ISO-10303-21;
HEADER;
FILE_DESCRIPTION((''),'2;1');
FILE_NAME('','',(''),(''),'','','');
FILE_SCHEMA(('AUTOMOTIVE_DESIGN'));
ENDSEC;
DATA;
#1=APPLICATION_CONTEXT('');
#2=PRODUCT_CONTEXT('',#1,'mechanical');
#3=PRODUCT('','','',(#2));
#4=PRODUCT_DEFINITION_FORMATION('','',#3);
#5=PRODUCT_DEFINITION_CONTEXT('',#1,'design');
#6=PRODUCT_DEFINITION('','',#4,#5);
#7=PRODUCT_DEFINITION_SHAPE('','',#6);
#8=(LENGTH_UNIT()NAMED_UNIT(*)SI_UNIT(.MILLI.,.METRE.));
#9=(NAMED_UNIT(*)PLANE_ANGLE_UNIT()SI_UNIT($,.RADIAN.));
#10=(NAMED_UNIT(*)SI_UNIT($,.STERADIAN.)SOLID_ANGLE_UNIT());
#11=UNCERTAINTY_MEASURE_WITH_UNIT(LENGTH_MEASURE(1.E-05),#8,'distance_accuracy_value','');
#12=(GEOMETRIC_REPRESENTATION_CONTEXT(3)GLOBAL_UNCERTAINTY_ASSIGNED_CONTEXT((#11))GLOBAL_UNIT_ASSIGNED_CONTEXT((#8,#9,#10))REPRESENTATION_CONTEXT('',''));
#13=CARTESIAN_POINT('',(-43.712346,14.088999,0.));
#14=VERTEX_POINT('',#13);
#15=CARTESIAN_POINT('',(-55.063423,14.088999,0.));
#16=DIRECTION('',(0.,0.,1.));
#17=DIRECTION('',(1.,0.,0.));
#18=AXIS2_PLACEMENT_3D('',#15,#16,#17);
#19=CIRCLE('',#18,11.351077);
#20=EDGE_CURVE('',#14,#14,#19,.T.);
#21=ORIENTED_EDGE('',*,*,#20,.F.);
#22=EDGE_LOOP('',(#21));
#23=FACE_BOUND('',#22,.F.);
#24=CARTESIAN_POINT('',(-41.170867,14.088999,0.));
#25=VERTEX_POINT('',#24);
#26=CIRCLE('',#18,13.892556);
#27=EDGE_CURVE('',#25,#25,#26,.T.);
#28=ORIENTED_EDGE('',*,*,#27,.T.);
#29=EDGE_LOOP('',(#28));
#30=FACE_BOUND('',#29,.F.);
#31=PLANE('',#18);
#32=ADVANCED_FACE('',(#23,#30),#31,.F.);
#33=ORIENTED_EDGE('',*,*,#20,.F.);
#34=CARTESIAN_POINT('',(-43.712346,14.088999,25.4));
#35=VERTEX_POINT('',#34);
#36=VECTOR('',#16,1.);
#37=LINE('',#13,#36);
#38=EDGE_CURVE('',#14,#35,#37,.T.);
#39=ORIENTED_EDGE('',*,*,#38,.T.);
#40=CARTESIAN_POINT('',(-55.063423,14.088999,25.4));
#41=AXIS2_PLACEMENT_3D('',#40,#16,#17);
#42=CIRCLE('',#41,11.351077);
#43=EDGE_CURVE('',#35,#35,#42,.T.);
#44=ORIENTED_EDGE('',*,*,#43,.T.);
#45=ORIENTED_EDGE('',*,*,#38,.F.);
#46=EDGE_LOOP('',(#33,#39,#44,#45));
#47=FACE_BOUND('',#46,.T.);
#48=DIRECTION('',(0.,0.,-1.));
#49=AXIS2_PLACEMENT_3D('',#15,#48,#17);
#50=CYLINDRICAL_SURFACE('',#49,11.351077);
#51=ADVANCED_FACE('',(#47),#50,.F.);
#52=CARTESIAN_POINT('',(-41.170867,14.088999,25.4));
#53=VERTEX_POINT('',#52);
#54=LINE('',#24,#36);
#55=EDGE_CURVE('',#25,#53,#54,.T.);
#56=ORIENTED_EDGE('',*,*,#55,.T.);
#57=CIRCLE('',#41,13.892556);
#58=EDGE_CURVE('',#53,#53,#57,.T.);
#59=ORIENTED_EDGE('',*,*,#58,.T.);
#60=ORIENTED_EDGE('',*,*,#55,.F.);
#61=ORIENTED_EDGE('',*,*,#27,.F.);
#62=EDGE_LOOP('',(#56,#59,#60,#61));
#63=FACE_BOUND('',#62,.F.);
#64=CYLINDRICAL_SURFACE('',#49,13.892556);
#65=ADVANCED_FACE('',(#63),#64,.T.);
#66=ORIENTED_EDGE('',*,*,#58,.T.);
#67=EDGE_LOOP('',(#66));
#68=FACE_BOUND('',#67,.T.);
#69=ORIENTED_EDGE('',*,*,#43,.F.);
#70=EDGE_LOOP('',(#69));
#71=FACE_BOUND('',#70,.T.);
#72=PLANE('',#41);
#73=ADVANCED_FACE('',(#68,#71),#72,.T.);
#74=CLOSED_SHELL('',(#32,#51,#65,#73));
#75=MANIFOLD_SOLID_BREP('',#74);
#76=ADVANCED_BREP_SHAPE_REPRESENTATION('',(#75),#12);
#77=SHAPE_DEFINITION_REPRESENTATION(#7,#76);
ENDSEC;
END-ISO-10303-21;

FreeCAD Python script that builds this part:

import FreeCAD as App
import Part
import Sketcher

V = App.Vector
Q = App.Units.Quantity

doc = App.newDocument("Part")
body = doc.addObject("PartDesign::Body", "Body")

# Sketch on XY plane
sketch1 = body.newObject("Sketcher::SketchObject", "Sketch")
sketch1.AttachmentSupport = (doc.getObject("XY_Plane"), [""])
sketch1.MapMode = "FlatFace"
sketch1.addGeometry(Part.Circle(V(-55, 14, 0), V(0, 0, 1), 11), False)
sketch1.addConstraint(Sketcher.Constraint("Diameter", 0, Q("22.702153 mm")))
sketch1.addConstraint(Sketcher.Constraint("DistanceY", -1, 1, 0, 3, Q("14.088999 mm")))
sketch1.addConstraint(Sketcher.Constraint("DistanceX", 0, 3, -1, 1, Q("55.063423 mm")))
pad1 = body.newObject("PartDesign::Pad", "Pad")
pad1.Profile = sketch1
pad1.Length = Q("1 in")

# Sketch on XY plane
sketch2 = body.newObject("Sketcher::SketchObject", "Sketch001")
sketch2.AttachmentSupport = (doc.getObject("XY_Plane"), [""])
sketch2.MapMode = "FlatFace"
sketch2.AttachmentOffset = App.Placement(V(0, 0, 1 * 25.4), App.Rotation())
sketch2.addGeometry(Part.Circle(V(-55, 14, 0), V(0, 0, 1), 11), False)
sketch2.addConstraint(Sketcher.Constraint("Diameter", 0, Q("22.702153 mm")))
sketch2.addConstraint(Sketcher.Constraint("DistanceY", -1, 1, 0, 3, Q("14.088999 mm")))
sketch2.addConstraint(Sketcher.Constraint("DistanceX", 0, 3, -1, 1, Q("55.063423 mm")))
pocket1 = body.newObject("PartDesign::Pocket", "Pocket")
pocket1.Profile = sketch2
pocket1.Type = "ThroughAll"
body2 = doc.addObject("PartDesign::Body", "Body001")

# Sketch on XY plane
sketch3 = body2.newObject("Sketcher::SketchObject", "Sketch002")
sketch3.AttachmentSupport = (doc.getObject("XY_Plane001"), [""])
sketch3.MapMode = "FlatFace"
sketch3.addGeometry(Part.Circle(V(-55, 14, 0), V(0, 0, 1), 14), False)
sketch3.addGeometry(Part.Circle(V(-55, 14, 0), V(0, 0, 1), 11), False)
sketch3.addConstraint(Sketcher.Constraint("Coincident", 1, 3, 0, 3))
sketch3.addConstraint(Sketcher.Constraint("Diameter", 0, Q("27.785111 mm")))
sketch3.addConstraint(Sketcher.Constraint("Diameter", 1, Q("22.702153 mm")))
sketch3.addConstraint(Sketcher.Constraint("DistanceY", -1, 1, 0, 3, Q("14.088999 mm")))
sketch3.addConstraint(Sketcher.Constraint("DistanceX", 0, 3, -1, 1, Q("55.063423 mm")))
pad2 = body2.newObject("PartDesign::Pad", "Pad001")
pad2.Profile = sketch3
pad2.Length = Q("1 in")

doc.recompute()
